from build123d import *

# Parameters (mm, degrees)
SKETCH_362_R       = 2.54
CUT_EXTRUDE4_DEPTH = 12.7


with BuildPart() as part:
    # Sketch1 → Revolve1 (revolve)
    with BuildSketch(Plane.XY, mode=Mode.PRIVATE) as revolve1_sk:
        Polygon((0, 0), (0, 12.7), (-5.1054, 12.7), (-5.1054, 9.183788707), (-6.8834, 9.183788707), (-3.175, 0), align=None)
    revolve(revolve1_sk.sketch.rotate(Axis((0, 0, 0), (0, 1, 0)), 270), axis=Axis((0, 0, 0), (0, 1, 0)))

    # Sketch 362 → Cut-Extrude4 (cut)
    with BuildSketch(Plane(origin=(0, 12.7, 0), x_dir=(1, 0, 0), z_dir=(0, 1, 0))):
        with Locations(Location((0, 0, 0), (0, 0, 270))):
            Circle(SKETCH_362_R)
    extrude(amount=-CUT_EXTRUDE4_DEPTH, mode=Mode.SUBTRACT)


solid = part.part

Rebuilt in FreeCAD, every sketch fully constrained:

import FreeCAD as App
import Part
import Sketcher
Q = App.Units.Quantity

doc = App.newDocument("Part")
body = doc.addObject("PartDesign::Body", "Body")

# Sketch on XY plane
sketch1 = body.newObject("Sketcher::SketchObject", "Sketch")
sketch1.AttachmentSupport = (doc.getObject("XY_Plane"), [""])
sketch1.MapMode = "FlatFace"
sketch1.addGeometry([
    Part.LineSegment(App.Vector(0, 0, 0), App.Vector(0, 12.7, 0)),  # 0
    Part.LineSegment(App.Vector(0, 12.7, 0), App.Vector(-5.1, 12.7, 0)),  # 1
    Part.LineSegment(App.Vector(-5.1, 12.7, 0), App.Vector(-5.1, 9.2, 0)),  # 2
    Part.LineSegment(App.Vector(-5.1, 9.2, 0), App.Vector(-6.9, 9.2, 0)),  # 3
    Part.LineSegment(App.Vector(-6.9, 9.2, 0), App.Vector(-3.2, 0, 0)),  # 4
    Part.LineSegment(App.Vector(-3.2, 0, 0), App.Vector(0, 0, 0)),  # 5
], False)
sketch1.addConstraint([
    Sketcher.Constraint("Coincident", 0, 2, 1, 1),
    Sketcher.Constraint("Coincident", 1, 2, 2, 1),
    Sketcher.Constraint("Coincident", 2, 2, 3, 1),
    Sketcher.Constraint("Coincident", 3, 2, 4, 1),
    Sketcher.Constraint("Coincident", 4, 2, 5, 1),
    Sketcher.Constraint("Coincident", 5, 2, 0, 1),
    Sketcher.Constraint("Vertical", 0),
    Sketcher.Constraint("Horizontal", 1),
    Sketcher.Constraint("Vertical", 2),
    Sketcher.Constraint("Horizontal", 3),
    Sketcher.Constraint("Horizontal", 5),
    Sketcher.Constraint("Coincident", 5, 2, -1, 1),
    Sketcher.Constraint("DistanceY", 0, 1, 0, 2, Q("0.5 in")),
    Sketcher.Constraint("DistanceX", 3, 2, 3, 1, Q("0.07 in")),
    Sketcher.Constraint("DistanceX", 1, 2, 1, 1, Q("0.201 in")),
    Sketcher.Constraint("DistanceX", 5, 1, 5, 2, Q("0.125 in")),
    Sketcher.Constraint("DistanceY", 2, 2, 2, 1, Q("3.516211 mm")),
])
revolution = body.newObject("PartDesign::Revolution", "Revolution")
revolution.Profile = sketch1
revolution.ReferenceAxis = (sketch1, ["V_Axis"])
revolution.Angle = 360

# Sketch on XZ plane
sketch2 = body.newObject("Sketcher::SketchObject", "Sketch001")
sketch2.AttachmentSupport = (doc.getObject("XZ_Plane"), [""])
sketch2.MapMode = "FlatFace"
sketch2.AttachmentOffset = App.Placement(App.Vector(0, 0, -0.5 * 25.4), App.Rotation())
sketch2.addGeometry(Part.Circle(App.Vector(0, 0, 0), App.Vector(0, 0, 1), 2.5), False)
sketch2.addConstraint([
    Sketcher.Constraint("Coincident", 0, 3, -1, 1),
    Sketcher.Constraint("Diameter", 0, Q("0.2 in")),
])
pocket1 = body.newObject("PartDesign::Pocket", "Pocket")
pocket1.Profile = sketch2
pocket1.Length = Q("0.5 in")
pocket1.Reversed = True

doc.recompute()
